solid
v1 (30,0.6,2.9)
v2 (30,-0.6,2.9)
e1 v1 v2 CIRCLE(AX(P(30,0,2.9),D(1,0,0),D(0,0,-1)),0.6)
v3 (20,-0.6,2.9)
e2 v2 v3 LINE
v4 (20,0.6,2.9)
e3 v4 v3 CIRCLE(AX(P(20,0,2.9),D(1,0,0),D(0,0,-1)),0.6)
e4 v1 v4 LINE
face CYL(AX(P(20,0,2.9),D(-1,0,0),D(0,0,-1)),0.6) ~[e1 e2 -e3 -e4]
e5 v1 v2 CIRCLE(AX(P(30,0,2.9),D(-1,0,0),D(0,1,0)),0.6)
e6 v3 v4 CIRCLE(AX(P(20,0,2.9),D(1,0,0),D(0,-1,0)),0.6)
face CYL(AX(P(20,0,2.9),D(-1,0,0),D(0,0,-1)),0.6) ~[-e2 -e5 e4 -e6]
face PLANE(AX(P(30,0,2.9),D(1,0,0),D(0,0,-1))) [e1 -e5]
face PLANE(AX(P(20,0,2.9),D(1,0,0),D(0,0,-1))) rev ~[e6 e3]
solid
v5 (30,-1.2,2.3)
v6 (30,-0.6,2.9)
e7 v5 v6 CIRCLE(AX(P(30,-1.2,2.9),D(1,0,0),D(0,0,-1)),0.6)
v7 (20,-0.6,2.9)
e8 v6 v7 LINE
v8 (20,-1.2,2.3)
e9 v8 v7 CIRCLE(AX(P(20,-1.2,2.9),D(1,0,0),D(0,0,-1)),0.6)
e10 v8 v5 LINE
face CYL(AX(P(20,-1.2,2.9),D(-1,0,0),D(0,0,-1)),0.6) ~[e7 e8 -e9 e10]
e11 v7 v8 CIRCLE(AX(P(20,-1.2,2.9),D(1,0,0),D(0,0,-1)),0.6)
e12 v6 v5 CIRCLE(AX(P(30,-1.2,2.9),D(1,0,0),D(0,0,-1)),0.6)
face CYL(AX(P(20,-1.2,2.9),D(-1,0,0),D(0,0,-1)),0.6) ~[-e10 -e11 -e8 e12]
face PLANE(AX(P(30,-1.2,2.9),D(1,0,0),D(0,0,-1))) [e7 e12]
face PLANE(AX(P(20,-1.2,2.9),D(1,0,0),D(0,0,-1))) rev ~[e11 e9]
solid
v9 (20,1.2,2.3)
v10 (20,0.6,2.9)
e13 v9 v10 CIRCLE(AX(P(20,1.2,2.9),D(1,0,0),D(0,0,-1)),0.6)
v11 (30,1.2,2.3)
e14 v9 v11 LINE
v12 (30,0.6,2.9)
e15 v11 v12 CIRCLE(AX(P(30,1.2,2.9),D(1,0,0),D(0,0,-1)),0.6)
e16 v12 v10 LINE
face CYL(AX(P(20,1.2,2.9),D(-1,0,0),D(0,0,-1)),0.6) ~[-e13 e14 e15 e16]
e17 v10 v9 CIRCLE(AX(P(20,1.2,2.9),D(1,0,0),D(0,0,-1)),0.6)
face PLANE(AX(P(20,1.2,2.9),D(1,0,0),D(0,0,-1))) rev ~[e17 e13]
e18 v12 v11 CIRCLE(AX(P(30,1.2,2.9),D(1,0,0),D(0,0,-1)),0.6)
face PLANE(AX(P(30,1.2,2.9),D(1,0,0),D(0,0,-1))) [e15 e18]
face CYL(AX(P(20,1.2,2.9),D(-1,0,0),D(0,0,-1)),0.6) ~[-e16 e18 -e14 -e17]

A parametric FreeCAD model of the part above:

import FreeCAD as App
import Part
import Sketcher

V = App.Vector

doc = App.newDocument("Part")
body = doc.addObject("PartDesign::Body", "Body")

sketch1 = body.newObject("Sketcher::SketchObject", "Sketch")
sketch1.AttachmentSupport = (doc.getObject("XY_Plane"), [""])
sketch1.MapMode = "FlatFace"
sketch1.addGeometry(Part.Circle(V(0, 0, 0), V(0, 0, 1), 0.6), False)
sketch1.addConstraint(Sketcher.Constraint("Coincident", 0, 3, -1, 1))
sketch1.addConstraint(Sketcher.Constraint("Diameter", 0, 1.2))
pad1 = body.newObject("PartDesign::Pad", "Pad")
pad1.Profile = sketch1
pad1.Length = 10
body2 = doc.addObject("PartDesign::Body", "Body001")
doc.recompute()

body.Placement = App.Placement(V(0, 0, 0), App.Rotation(V(0, 1, 0), 90))
boolean = body2.newObject("PartDesign::Boolean", "Boolean")
boolean.Type = "Fuse"
boolean.addObjects([body])
body3 = doc.addObject("PartDesign::Body", "Body002")
doc.recompute()

body2.Placement = App.Placement(V(0, -1.2, 0), App.Rotation(V(0, 0, 1), 0))
boolean2 = body3.newObject("PartDesign::Boolean", "Boolean001")
boolean2.Type = "Fuse"
boolean2.addObjects([body2])
body4 = doc.addObject("PartDesign::Body", "Body003")

sketch2 = body4.newObject("Sketcher::SketchObject", "Sketch001")
sketch2.AttachmentSupport = (doc.getObject("XY_Plane003"), [""])
sketch2.MapMode = "FlatFace"
sketch2.addGeometry(Part.Circle(V(0, 0, 0), V(0, 0, 1), 0.6), False)
sketch2.addConstraint(Sketcher.Constraint("Coincident", 0, 3, -1, 1))
sketch2.addConstraint(Sketcher.Constraint("Diameter", 0, 1.2))
pad2 = body4.newObject("PartDesign::Pad", "Pad001")
pad2.Profile = sketch2
pad2.Length = 10
body5 = doc.addObject("PartDesign::Body", "Body004")
doc.recompute()

body4.Placement = App.Placement(V(0, 0, 0), App.Rotation(V(0, 1, 0), 90))
boolean3 = body5.newObject("PartDesign::Boolean", "Boolean002")
boolean3.Type = "Fuse"
boolean3.addObjects([body4])
body6 = doc.addObject("PartDesign::Body", "Body005")
doc.recompute()

body5.Placement = App.Placement(V(0, 1.2, 0), App.Rotation(V(0, 0, 1), 0))
boolean4 = body6.newObject("PartDesign::Boolean", "Boolean003")
boolean4.Type = "Fuse"
boolean4.addObjects([body5])
body7 = doc.addObject("PartDesign::Body", "Body006")

sketch3 = body7.newObject("Sketcher::SketchObject", "Sketch002")
sketch3.AttachmentSupport = (doc.getObject("XY_Plane006"), [""])
sketch3.MapMode = "FlatFace"
sketch3.addGeometry(Part.Circle(V(0, 0, 0), V(0, 0, 1), 0.6), False)
sketch3.addConstraint(Sketcher.Constraint("Coincident", 0, 3, -1, 1))
sketch3.addConstraint(Sketcher.Constraint("Diameter", 0, 1.2))
pad3 = body7.newObject("PartDesign::Pad", "Pad002")
pad3.Profile = sketch3
pad3.Length = 10
body8 = doc.addObject("PartDesign::Body", "Body007")
doc.recompute()

body7.Placement = App.Placement(V(0, 0, 0), App.Rotation(V(0, 1, 0), 90))
boolean5 = body8.newObject("PartDesign::Boolean", "Boolean004")
boolean5.Type = "Fuse"
boolean5.addObjects([body7])
body8.AllowCompound = True
doc.recompute()

boolean6 = body8.newObject("PartDesign::Boolean", "Boolean005")
boolean6.Type = "Fuse"
boolean6.addObjects([body3])
doc.recompute()

boolean7 = body8.newObject("PartDesign::Boolean", "Boolean006")
boolean7.Type = "Fuse"
boolean7.addObjects([body6])
body9 = doc.addObject("PartDesign::Body", "Body008")
body9.AllowCompound = True
doc.recompute()

body8.Placement = App.Placement(V(20, 0, 2.9), App.Rotation(V(0, 0, 1), 0))
boolean8 = body9.newObject("PartDesign::Boolean", "Boolean007")
boolean8.Type = "Fuse"
boolean8.addObjects([body8])

doc.recompute()
